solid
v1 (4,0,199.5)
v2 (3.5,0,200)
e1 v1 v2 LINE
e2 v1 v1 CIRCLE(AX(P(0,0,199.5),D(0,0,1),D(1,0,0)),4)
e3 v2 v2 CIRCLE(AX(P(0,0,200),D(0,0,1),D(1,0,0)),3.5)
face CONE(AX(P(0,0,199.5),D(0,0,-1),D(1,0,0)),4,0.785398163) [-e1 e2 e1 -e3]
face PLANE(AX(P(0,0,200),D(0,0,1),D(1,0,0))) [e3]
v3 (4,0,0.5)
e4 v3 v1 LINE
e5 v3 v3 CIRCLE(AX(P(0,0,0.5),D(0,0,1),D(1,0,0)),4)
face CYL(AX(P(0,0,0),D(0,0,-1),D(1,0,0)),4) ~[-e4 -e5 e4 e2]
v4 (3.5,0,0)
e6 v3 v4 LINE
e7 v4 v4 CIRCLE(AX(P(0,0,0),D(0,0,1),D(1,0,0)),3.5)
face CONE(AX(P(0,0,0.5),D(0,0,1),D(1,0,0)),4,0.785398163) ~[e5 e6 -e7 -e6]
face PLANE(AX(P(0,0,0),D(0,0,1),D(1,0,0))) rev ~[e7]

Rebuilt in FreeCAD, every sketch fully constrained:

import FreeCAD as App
import Part
import Sketcher
from FreeCAD import Vector


def edges_at(feature, points):
    """Names of the edges that pass closest to the given points."""
    edges = feature.Shape.Edges
    near = lambda p: min(range(len(edges)), key=lambda i: edges[i].distToShape(Part.Vertex(*p))[0])
    return sorted({f"Edge{near(p) + 1}" for p in points})

doc = App.newDocument("Part")
body = doc.addObject("PartDesign::Body", "Body")

# Sketch on XY plane
sketch1 = body.newObject("Sketcher::SketchObject", "Sketch")
sketch1.AttachmentSupport = (doc.getObject("XY_Plane"), [""])
sketch1.MapMode = "FlatFace"
sketch1.addGeometry(Part.Circle(Vector(0, 0, 0), Vector(0, 0, 1), 4), False)
sketch1.addConstraint([
    Sketcher.Constraint("Coincident", 0, 3, -1, 1),
    Sketcher.Constraint("Diameter", 0, 8.0),
])
pad1 = body.newObject("PartDesign::Pad", "Pad")
pad1.Profile = sketch1
pad1.Length = 200
doc.recompute()

chamfer = body.newObject("PartDesign::Chamfer", "Chamfer")
chamfer.Base = (pad1, edges_at(pad1, [(-4, 0, 200), (-4, 0, 0)]))
chamfer.Size = 0.5

doc.recompute()
